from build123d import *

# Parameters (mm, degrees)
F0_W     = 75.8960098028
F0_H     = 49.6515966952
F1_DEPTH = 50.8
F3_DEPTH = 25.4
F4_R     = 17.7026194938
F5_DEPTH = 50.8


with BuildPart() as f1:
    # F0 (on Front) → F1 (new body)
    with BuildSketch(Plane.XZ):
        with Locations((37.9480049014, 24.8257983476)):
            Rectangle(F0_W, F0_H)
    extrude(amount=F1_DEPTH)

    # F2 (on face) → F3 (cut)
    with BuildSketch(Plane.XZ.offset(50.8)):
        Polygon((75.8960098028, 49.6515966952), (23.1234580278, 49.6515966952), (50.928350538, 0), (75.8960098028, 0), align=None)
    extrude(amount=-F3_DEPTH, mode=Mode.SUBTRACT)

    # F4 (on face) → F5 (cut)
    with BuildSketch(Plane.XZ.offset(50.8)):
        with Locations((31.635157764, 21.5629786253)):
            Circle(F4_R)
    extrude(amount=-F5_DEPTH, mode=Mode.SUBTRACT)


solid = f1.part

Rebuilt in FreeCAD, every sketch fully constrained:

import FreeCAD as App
import Part
import Sketcher

V = App.Vector
Q = App.Units.Quantity

doc = App.newDocument("Part")
params = doc.addObject("Spreadsheet::Sheet", "Params")
for row, (alias, value) in enumerate([
    ("pad1_length", "2 in"),
    ("pocket1_length", "1 in"),
    ("pocket2_length", "2 in"),
], start=1):
    params.set(f"A{row}", alias)
    params.set(f"B{row}", "=" + value)
    params.setAlias(f"B{row}", alias)

body = doc.addObject("PartDesign::Body", "Body")

# Sketch on XZ plane
sketch1 = body.newObject("Sketcher::SketchObject", "Sketch")
sketch1.AttachmentSupport = (doc.getObject("XZ_Plane"), [""])
sketch1.MapMode = "FlatFace"
sketch1.addGeometry([
    Part.LineSegment(V(0, 50, 0), V(0, 0, 0)),
    Part.LineSegment(V(0, 0, 0), V(76, 0, 0)),
    Part.LineSegment(V(76, 0, 0), V(76, 50, 0)),
    Part.LineSegment(V(76, 50, 0), V(0, 50, 0)),
], False)
sketch1.addConstraint([
    Sketcher.Constraint("Coincident", 0, 2, 1, 1),
    Sketcher.Constraint("Coincident", 1, 2, 2, 1),
    Sketcher.Constraint("Coincident", 2, 2, 3, 1),
    Sketcher.Constraint("Coincident", 3, 2, 0, 1),
    Sketcher.Constraint("Vertical", 0),
    Sketcher.Constraint("Horizontal", 1),
    Sketcher.Constraint("Vertical", 2),
    Sketcher.Constraint("Horizontal", 3),
    Sketcher.Constraint("Coincident", 0, 2, -1, 1),
    Sketcher.Constraint("DistanceX", 1, 1, 1, 2, Q("75.89601 mm")),
    Sketcher.Constraint("DistanceY", 0, 2, 0, 1, Q("49.651597 mm")),
])
pad1 = body.newObject("PartDesign::Pad", "Pad")
pad1.Profile = sketch1
pad1.setExpression("Length", "Params.pad1_length")

# Sketch on XZ plane
sketch2 = body.newObject("Sketcher::SketchObject", "Sketch001")
sketch2.AttachmentSupport = (doc.getObject("XZ_Plane"), [""])
sketch2.MapMode = "FlatFace"
sketch2.AttachmentOffset = App.Placement(V(0, 0, 2 * 25.4), App.Rotation())
sketch2.addGeometry([
    Part.LineSegment(V(76, 50, 0), V(23, 50, 0)),
    Part.LineSegment(V(23, 50, 0), V(51, 0, 0)),
    Part.LineSegment(V(51, 0, 0), V(76, 0, 0)),
    Part.LineSegment(V(76, 0, 0), V(76, 50, 0)),
], False)
sketch2.addConstraint([
    Sketcher.Constraint("Coincident", 0, 2, 1, 1),
    Sketcher.Constraint("Coincident", 1, 2, 2, 1),
    Sketcher.Constraint("Coincident", 2, 2, 3, 1),
    Sketcher.Constraint("Coincident", 3, 2, 0, 1),
    Sketcher.Constraint("Horizontal", 0),
    Sketcher.Constraint("Horizontal", 2),
    Sketcher.Constraint("Vertical", 3),
    Sketcher.Constraint("PointOnObject", 1, 2, -1),
    Sketcher.Constraint("DistanceX", 0, 2, 0, 1, Q("52.772552 mm")),
    Sketcher.Constraint("DistanceX", 2, 1, 2, 2, Q("24.967659 mm")),
    Sketcher.Constraint("Distance", 1, Q("56.906881 mm")),
    Sketcher.Constraint("DistanceX", -1, 1, 0, 2, Q("23.123458 mm")),
])
pocket1 = body.newObject("PartDesign::Pocket", "Pocket")
pocket1.Profile = sketch2
pocket1.setExpression("Length", "Params.pocket1_length")

# Sketch on XZ plane
sketch3 = body.newObject("Sketcher::SketchObject", "Sketch002")
sketch3.AttachmentSupport = (doc.getObject("XZ_Plane"), [""])
sketch3.MapMode = "FlatFace"
sketch3.AttachmentOffset = App.Placement(V(0, 0, 2 * 25.4), App.Rotation())
sketch3.addGeometry(Part.Circle(V(32, 22, 0), V(0, 0, 1), 18), False)
sketch3.addConstraint([
    Sketcher.Constraint("Diameter", 0, Q("35.405239 mm")),
    Sketcher.Constraint("DistanceY", -1, 1, 0, 3, Q("21.562979 mm")),
    Sketcher.Constraint("DistanceX", -1, 1, 0, 3, Q("31.635158 mm")),
])
pocket2 = body.newObject("PartDesign::Pocket", "Pocket001")
pocket2.Profile = sketch3
pocket2.setExpression("Length", "Params.pocket2_length")

doc.recompute()
